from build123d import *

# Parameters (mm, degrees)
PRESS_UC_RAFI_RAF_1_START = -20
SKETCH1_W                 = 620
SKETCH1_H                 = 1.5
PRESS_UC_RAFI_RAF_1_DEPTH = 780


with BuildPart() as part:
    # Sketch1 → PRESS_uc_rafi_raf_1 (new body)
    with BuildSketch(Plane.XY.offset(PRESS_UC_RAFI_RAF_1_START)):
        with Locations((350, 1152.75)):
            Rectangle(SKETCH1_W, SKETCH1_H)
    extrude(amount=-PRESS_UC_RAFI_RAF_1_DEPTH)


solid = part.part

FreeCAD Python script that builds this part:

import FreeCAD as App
import Part
import Sketcher
from FreeCAD import Vector
Q = App.Units.Quantity


def add_polygon(sketch, points):
    """Adds a closed chain of lines whose ends are joined by coincident constraints."""
    first, n = sketch.GeometryCount, len(points)
    for a, b in zip(points, points[1:] + points[:1]):
        sketch.addGeometry(Part.LineSegment(App.Vector(*a, 0), App.Vector(*b, 0)), False)
    for i in range(n):
        sketch.addConstraint(Sketcher.Constraint("Coincident", first + i, 2, first + (i + 1) % n, 1))

doc = App.newDocument("Part")
body = doc.addObject("PartDesign::Body", "Body")

sketch1 = body.newObject("Sketcher::SketchObject", "Sketch")
sketch1.AttachmentSupport = (doc.getObject("XY_Plane"), [""])
sketch1.MapMode = "FlatFace"
sketch1.AttachmentOffset = App.Placement(Vector(0, 0, -20), App.Rotation())
add_polygon(sketch1, [(40, 1153.5), (40, 1152), (660, 1152), (660, 1153.5)])
sketch1.addConstraint(Sketcher.Constraint("Vertical", 0))
sketch1.addConstraint(Sketcher.Constraint("Horizontal", 1))
sketch1.addConstraint(Sketcher.Constraint("Vertical", 2))
sketch1.addConstraint(Sketcher.Constraint("Horizontal", 3))
sketch1.addConstraint(Sketcher.Constraint("DistanceX", 1, 1, 1, 2, Q("620 mm")))
sketch1.addConstraint(Sketcher.Constraint("DistanceY", 0, 2, 0, 1, Q("1.5 mm")))
sketch1.addConstraint(Sketcher.Constraint("DistanceX", -1, 1, 0, 2, Q("40 mm")))
sketch1.addConstraint(Sketcher.Constraint("DistanceY", -1, 1, 0, 2, Q("1152 mm")))
pad1 = body.newObject("PartDesign::Pad", "Pad")
pad1.Profile = sketch1
pad1.Length = 780
pad1.Reversed = True

doc.recompute()
